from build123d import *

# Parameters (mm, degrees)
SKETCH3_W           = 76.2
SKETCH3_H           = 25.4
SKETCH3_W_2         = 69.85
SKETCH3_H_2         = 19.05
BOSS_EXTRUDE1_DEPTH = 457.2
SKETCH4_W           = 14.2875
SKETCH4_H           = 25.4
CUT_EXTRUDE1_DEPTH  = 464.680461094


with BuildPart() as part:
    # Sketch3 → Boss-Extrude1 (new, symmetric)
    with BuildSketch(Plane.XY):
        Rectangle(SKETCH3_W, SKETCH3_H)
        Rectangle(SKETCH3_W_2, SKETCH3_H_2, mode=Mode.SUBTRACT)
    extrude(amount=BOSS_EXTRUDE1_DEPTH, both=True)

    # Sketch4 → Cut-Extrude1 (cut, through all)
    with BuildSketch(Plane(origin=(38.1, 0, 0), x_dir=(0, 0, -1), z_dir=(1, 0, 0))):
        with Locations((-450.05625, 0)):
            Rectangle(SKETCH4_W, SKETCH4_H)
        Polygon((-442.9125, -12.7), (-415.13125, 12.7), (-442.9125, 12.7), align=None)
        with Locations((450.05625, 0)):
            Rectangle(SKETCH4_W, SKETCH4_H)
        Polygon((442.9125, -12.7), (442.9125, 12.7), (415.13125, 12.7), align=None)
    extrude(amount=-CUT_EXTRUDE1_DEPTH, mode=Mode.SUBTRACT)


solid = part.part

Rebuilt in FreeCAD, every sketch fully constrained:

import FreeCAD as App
import Part
import Sketcher
from FreeCAD import Vector
Q = App.Units.Quantity


def add_polygon(sketch, points):
    """Adds a closed chain of lines whose ends are joined by coincident constraints."""
    first, n = sketch.GeometryCount, len(points)
    for a, b in zip(points, points[1:] + points[:1]):
        sketch.addGeometry(Part.LineSegment(App.Vector(*a, 0), App.Vector(*b, 0)), False)
    for i in range(n):
        sketch.addConstraint(Sketcher.Constraint("Coincident", first + i, 2, first + (i + 1) % n, 1))

doc = App.newDocument("Part")
body = doc.addObject("PartDesign::Body", "Body")

sketch1 = body.newObject("Sketcher::SketchObject", "Sketch")
sketch1.AttachmentSupport = (doc.getObject("XY_Plane"), [""])
sketch1.MapMode = "FlatFace"
add_polygon(sketch1, [(-38, 13), (-38, -13), (38, -13), (38, 13)])
add_polygon(sketch1, [(35, -10), (-35, -10), (-35, 10), (35, 10)])
sketch1.addConstraint(Sketcher.Constraint("Vertical", 0))
sketch1.addConstraint(Sketcher.Constraint("Horizontal", 1))
sketch1.addConstraint(Sketcher.Constraint("Vertical", 2))
sketch1.addConstraint(Sketcher.Constraint("Horizontal", 3))
sketch1.addConstraint(Sketcher.Constraint("Horizontal", 4))
sketch1.addConstraint(Sketcher.Constraint("Vertical", 5))
sketch1.addConstraint(Sketcher.Constraint("Horizontal", 6))
sketch1.addConstraint(Sketcher.Constraint("Vertical", 7))
sketch1.addConstraint(Sketcher.Constraint("Symmetric", 0, 2, 2, 2, -1, 1))
sketch1.addConstraint(Sketcher.Constraint("Symmetric", 4, 2, 6, 2, -1, 1))
sketch1.addConstraint(Sketcher.Constraint("DistanceX", 1, 1, 1, 2, Q("3 in")))
sketch1.addConstraint(Sketcher.Constraint("DistanceY", 0, 2, 0, 1, Q("1 in")))
sketch1.addConstraint(Sketcher.Constraint("DistanceX", 4, 2, 4, 1, Q("2.75 in")))
sketch1.addConstraint(Sketcher.Constraint("DistanceY", 5, 1, 5, 2, Q("0.75 in")))
pad1 = body.newObject("PartDesign::Pad", "Pad")
pad1.Profile = sketch1
pad1.Length = Q("36 in")
pad1.Midplane = True

sketch2 = body.newObject("Sketcher::SketchObject", "Sketch001")
sketch2.AttachmentSupport = (doc.getObject("YZ_Plane"), [""])
sketch2.MapMode = "FlatFace"
sketch2.AttachmentOffset = App.Placement(Vector(0, 0, 1.5 * 25.4), App.Rotation())
add_polygon(sketch2, [(13, 457), (-13, 457), (-13, 443), (13, 415)])
add_polygon(sketch2, [(-13, -443), (-13, -457), (13, -457), (13, -415)])
sketch2.addConstraint(Sketcher.Constraint("Horizontal", 0))
sketch2.addConstraint(Sketcher.Constraint("Vertical", 1))
sketch2.addConstraint(Sketcher.Constraint("Vertical", 3))
sketch2.addConstraint(Sketcher.Constraint("Vertical", 4))
sketch2.addConstraint(Sketcher.Constraint("Horizontal", 5))
sketch2.addConstraint(Sketcher.Constraint("Vertical", 6))
sketch2.addConstraint(Sketcher.Constraint("Symmetric", 3, 2, 4, 2, -1, 1))
sketch2.addConstraint(Sketcher.Constraint("Symmetric", 2, 2, 6, 2, -1))
sketch2.addConstraint(Sketcher.Constraint("Symmetric", 1, 2, 7, 2, -1))
sketch2.addConstraint(Sketcher.Constraint("DistanceX", 0, 2, 0, 1, Q("1 in")))
sketch2.addConstraint(Sketcher.Constraint("DistanceY", -1, 1, 0, 2, Q("18 in")))
sketch2.addConstraint(Sketcher.Constraint("DistanceY", 1, 2, 1, 1, Q("0.5625 in")))
sketch2.addConstraint(Sketcher.Constraint("DistanceY", 3, 1, 3, 2, Q("1.65625 in")))
pocket1 = body.newObject("PartDesign::Pocket", "Pocket")
pocket1.Profile = sketch2
pocket1.Type = "ThroughAll"

doc.recompute()
